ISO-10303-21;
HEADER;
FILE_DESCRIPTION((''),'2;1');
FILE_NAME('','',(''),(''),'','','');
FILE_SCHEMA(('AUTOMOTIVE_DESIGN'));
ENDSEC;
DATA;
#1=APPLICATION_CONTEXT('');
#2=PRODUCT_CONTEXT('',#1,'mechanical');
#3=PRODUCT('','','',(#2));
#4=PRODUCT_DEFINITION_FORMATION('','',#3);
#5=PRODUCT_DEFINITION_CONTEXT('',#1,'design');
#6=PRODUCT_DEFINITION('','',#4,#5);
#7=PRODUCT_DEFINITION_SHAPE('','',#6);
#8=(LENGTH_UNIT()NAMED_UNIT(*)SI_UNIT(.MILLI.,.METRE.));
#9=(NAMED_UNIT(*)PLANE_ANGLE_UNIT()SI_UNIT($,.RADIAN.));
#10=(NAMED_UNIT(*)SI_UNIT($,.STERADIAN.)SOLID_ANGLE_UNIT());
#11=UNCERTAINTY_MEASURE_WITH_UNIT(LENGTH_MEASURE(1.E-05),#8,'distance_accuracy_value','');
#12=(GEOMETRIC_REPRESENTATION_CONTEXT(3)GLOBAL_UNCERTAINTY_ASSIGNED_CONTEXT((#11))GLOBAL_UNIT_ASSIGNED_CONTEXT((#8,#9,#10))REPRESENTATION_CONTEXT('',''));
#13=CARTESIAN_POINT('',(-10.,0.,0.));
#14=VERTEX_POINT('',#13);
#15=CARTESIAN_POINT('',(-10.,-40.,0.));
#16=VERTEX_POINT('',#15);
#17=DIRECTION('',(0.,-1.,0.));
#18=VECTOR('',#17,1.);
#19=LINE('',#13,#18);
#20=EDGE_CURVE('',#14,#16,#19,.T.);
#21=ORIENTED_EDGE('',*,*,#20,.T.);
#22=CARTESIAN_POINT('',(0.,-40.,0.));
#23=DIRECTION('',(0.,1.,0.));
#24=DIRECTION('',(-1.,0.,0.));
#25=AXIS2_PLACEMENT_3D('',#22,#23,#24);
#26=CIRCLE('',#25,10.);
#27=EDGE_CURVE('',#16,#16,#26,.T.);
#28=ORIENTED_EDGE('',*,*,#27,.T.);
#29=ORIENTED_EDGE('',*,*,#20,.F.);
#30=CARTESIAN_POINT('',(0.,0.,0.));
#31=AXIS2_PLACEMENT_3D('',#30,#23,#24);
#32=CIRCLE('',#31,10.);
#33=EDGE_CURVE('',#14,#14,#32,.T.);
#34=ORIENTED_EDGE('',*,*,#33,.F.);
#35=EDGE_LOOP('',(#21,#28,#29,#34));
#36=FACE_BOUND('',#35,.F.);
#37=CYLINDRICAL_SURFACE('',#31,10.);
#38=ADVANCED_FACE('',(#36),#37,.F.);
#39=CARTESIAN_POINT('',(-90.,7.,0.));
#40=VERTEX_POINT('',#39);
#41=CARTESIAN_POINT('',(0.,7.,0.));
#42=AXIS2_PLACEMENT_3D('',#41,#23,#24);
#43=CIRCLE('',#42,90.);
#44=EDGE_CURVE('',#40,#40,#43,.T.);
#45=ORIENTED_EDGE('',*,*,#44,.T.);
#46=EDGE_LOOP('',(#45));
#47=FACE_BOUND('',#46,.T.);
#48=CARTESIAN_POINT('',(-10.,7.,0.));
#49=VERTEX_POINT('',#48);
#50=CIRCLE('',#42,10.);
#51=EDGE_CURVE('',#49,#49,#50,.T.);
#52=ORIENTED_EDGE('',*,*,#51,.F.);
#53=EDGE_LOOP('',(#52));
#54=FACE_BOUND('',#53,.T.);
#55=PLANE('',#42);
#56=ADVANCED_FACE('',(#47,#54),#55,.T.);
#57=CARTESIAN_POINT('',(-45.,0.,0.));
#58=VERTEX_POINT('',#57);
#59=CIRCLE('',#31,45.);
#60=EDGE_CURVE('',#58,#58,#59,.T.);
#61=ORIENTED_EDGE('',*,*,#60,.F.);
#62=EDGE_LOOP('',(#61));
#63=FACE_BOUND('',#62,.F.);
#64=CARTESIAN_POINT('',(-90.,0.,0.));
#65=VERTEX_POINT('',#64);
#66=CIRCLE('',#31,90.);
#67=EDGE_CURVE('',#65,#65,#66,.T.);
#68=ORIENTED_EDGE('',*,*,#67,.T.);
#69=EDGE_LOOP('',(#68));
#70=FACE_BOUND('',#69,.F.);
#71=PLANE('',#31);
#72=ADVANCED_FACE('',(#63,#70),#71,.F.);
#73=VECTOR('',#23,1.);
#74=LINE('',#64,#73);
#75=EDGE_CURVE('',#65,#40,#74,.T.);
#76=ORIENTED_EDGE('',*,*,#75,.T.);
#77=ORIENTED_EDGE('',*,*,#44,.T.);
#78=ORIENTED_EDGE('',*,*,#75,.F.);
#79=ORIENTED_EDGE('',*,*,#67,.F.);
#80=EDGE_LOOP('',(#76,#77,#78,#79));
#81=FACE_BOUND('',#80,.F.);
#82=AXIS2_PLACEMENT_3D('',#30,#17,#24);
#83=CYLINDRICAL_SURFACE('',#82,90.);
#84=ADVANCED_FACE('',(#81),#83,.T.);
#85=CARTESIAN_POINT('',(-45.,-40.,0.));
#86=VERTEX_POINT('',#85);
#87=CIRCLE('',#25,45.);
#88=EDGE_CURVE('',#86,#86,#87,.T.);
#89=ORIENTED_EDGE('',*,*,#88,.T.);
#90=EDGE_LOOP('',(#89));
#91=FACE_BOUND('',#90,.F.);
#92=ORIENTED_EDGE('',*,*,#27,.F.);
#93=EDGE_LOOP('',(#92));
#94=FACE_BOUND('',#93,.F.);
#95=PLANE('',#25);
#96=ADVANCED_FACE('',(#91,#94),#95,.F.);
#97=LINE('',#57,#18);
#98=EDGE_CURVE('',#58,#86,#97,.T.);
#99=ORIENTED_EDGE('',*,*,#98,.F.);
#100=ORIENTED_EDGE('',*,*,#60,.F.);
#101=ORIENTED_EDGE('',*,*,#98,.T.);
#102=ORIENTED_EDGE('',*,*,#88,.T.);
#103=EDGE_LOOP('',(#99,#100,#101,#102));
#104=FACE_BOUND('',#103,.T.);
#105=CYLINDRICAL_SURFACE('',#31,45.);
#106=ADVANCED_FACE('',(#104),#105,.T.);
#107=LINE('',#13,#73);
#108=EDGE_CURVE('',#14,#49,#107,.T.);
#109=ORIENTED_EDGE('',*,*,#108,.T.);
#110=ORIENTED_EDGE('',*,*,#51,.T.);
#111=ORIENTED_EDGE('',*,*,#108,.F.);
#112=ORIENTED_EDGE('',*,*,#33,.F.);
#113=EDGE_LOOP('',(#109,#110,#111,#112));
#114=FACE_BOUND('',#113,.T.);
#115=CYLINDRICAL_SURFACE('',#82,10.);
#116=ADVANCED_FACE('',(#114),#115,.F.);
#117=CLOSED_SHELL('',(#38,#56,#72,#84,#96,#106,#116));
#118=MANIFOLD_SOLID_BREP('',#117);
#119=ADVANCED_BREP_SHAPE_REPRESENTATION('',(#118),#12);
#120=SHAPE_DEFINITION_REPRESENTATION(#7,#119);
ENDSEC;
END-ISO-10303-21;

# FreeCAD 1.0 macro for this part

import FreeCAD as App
import Part
import Sketcher
Q = App.Units.Quantity

doc = App.newDocument("Part")
params = doc.addObject("Spreadsheet::Sheet", "Params")
for row, (alias, value) in enumerate([
    ("sketch1_diameter", "180 mm"),
    ("sketch1_diameter2", "20 mm"),
    ("pad1_length", "7 mm"),
    ("sketch2_diameter", "90 mm"),
    ("sketch2_diameter2", "20 mm"),
    ("pad2_length", "40 mm"),
], start=1):
    params.set(f"A{row}", alias)
    params.set(f"B{row}", "=" + value)
    params.setAlias(f"B{row}", alias)

body = doc.addObject("PartDesign::Body", "Body")

# Sketch on XZ plane
sketch1 = body.newObject("Sketcher::SketchObject", "Sketch")
sketch1.AttachmentSupport = (doc.getObject("XZ_Plane"), [""])
sketch1.MapMode = "FlatFace"
sketch1.addGeometry([
    Part.Circle(App.Vector(0, 0, 0), App.Vector(0, 0, 1), 90),
    Part.Circle(App.Vector(0, 0, 0), App.Vector(0, 0, 1), 10),
], False)
sketch1.addConstraint([
    Sketcher.Constraint("Coincident", 0, 3, -1, 1),
    Sketcher.Constraint("Coincident", 1, 3, -1, 1),
    Sketcher.Constraint("Diameter", 0, Q("180 mm")),
    Sketcher.Constraint("Diameter", 1, Q("20 mm")),
])
sketch1.setExpression("Constraints[2]", "Params.sketch1_diameter")
sketch1.setExpression("Constraints[3]", "Params.sketch1_diameter2")
pad1 = body.newObject("PartDesign::Pad", "Pad")
pad1.Profile = sketch1
pad1.setExpression("Length", "Params.pad1_length")
pad1.Reversed = True

# Sketch on XZ plane
sketch2 = body.newObject("Sketcher::SketchObject", "Sketch001")
sketch2.AttachmentSupport = (doc.getObject("XZ_Plane"), [""])
sketch2.MapMode = "FlatFace"
sketch2.addGeometry([
    Part.Circle(App.Vector(0, 0, 0), App.Vector(0, 0, 1), 45),
    Part.Circle(App.Vector(0, 0, 0), App.Vector(0, 0, 1), 10),
], False)
sketch2.addConstraint([
    Sketcher.Constraint("Coincident", 0, 3, -1, 1),
    Sketcher.Constraint("Coincident", 1, 3, -1, 1),
    Sketcher.Constraint("Diameter", 0, Q("90 mm")),
    Sketcher.Constraint("Diameter", 1, Q("20 mm")),
])
sketch2.setExpression("Constraints[2]", "Params.sketch2_diameter")
sketch2.setExpression("Constraints[3]", "Params.sketch2_diameter2")
pad2 = body.newObject("PartDesign::Pad", "Pad001")
pad2.Profile = sketch2
pad2.setExpression("Length", "Params.pad2_length")

doc.recompute()
